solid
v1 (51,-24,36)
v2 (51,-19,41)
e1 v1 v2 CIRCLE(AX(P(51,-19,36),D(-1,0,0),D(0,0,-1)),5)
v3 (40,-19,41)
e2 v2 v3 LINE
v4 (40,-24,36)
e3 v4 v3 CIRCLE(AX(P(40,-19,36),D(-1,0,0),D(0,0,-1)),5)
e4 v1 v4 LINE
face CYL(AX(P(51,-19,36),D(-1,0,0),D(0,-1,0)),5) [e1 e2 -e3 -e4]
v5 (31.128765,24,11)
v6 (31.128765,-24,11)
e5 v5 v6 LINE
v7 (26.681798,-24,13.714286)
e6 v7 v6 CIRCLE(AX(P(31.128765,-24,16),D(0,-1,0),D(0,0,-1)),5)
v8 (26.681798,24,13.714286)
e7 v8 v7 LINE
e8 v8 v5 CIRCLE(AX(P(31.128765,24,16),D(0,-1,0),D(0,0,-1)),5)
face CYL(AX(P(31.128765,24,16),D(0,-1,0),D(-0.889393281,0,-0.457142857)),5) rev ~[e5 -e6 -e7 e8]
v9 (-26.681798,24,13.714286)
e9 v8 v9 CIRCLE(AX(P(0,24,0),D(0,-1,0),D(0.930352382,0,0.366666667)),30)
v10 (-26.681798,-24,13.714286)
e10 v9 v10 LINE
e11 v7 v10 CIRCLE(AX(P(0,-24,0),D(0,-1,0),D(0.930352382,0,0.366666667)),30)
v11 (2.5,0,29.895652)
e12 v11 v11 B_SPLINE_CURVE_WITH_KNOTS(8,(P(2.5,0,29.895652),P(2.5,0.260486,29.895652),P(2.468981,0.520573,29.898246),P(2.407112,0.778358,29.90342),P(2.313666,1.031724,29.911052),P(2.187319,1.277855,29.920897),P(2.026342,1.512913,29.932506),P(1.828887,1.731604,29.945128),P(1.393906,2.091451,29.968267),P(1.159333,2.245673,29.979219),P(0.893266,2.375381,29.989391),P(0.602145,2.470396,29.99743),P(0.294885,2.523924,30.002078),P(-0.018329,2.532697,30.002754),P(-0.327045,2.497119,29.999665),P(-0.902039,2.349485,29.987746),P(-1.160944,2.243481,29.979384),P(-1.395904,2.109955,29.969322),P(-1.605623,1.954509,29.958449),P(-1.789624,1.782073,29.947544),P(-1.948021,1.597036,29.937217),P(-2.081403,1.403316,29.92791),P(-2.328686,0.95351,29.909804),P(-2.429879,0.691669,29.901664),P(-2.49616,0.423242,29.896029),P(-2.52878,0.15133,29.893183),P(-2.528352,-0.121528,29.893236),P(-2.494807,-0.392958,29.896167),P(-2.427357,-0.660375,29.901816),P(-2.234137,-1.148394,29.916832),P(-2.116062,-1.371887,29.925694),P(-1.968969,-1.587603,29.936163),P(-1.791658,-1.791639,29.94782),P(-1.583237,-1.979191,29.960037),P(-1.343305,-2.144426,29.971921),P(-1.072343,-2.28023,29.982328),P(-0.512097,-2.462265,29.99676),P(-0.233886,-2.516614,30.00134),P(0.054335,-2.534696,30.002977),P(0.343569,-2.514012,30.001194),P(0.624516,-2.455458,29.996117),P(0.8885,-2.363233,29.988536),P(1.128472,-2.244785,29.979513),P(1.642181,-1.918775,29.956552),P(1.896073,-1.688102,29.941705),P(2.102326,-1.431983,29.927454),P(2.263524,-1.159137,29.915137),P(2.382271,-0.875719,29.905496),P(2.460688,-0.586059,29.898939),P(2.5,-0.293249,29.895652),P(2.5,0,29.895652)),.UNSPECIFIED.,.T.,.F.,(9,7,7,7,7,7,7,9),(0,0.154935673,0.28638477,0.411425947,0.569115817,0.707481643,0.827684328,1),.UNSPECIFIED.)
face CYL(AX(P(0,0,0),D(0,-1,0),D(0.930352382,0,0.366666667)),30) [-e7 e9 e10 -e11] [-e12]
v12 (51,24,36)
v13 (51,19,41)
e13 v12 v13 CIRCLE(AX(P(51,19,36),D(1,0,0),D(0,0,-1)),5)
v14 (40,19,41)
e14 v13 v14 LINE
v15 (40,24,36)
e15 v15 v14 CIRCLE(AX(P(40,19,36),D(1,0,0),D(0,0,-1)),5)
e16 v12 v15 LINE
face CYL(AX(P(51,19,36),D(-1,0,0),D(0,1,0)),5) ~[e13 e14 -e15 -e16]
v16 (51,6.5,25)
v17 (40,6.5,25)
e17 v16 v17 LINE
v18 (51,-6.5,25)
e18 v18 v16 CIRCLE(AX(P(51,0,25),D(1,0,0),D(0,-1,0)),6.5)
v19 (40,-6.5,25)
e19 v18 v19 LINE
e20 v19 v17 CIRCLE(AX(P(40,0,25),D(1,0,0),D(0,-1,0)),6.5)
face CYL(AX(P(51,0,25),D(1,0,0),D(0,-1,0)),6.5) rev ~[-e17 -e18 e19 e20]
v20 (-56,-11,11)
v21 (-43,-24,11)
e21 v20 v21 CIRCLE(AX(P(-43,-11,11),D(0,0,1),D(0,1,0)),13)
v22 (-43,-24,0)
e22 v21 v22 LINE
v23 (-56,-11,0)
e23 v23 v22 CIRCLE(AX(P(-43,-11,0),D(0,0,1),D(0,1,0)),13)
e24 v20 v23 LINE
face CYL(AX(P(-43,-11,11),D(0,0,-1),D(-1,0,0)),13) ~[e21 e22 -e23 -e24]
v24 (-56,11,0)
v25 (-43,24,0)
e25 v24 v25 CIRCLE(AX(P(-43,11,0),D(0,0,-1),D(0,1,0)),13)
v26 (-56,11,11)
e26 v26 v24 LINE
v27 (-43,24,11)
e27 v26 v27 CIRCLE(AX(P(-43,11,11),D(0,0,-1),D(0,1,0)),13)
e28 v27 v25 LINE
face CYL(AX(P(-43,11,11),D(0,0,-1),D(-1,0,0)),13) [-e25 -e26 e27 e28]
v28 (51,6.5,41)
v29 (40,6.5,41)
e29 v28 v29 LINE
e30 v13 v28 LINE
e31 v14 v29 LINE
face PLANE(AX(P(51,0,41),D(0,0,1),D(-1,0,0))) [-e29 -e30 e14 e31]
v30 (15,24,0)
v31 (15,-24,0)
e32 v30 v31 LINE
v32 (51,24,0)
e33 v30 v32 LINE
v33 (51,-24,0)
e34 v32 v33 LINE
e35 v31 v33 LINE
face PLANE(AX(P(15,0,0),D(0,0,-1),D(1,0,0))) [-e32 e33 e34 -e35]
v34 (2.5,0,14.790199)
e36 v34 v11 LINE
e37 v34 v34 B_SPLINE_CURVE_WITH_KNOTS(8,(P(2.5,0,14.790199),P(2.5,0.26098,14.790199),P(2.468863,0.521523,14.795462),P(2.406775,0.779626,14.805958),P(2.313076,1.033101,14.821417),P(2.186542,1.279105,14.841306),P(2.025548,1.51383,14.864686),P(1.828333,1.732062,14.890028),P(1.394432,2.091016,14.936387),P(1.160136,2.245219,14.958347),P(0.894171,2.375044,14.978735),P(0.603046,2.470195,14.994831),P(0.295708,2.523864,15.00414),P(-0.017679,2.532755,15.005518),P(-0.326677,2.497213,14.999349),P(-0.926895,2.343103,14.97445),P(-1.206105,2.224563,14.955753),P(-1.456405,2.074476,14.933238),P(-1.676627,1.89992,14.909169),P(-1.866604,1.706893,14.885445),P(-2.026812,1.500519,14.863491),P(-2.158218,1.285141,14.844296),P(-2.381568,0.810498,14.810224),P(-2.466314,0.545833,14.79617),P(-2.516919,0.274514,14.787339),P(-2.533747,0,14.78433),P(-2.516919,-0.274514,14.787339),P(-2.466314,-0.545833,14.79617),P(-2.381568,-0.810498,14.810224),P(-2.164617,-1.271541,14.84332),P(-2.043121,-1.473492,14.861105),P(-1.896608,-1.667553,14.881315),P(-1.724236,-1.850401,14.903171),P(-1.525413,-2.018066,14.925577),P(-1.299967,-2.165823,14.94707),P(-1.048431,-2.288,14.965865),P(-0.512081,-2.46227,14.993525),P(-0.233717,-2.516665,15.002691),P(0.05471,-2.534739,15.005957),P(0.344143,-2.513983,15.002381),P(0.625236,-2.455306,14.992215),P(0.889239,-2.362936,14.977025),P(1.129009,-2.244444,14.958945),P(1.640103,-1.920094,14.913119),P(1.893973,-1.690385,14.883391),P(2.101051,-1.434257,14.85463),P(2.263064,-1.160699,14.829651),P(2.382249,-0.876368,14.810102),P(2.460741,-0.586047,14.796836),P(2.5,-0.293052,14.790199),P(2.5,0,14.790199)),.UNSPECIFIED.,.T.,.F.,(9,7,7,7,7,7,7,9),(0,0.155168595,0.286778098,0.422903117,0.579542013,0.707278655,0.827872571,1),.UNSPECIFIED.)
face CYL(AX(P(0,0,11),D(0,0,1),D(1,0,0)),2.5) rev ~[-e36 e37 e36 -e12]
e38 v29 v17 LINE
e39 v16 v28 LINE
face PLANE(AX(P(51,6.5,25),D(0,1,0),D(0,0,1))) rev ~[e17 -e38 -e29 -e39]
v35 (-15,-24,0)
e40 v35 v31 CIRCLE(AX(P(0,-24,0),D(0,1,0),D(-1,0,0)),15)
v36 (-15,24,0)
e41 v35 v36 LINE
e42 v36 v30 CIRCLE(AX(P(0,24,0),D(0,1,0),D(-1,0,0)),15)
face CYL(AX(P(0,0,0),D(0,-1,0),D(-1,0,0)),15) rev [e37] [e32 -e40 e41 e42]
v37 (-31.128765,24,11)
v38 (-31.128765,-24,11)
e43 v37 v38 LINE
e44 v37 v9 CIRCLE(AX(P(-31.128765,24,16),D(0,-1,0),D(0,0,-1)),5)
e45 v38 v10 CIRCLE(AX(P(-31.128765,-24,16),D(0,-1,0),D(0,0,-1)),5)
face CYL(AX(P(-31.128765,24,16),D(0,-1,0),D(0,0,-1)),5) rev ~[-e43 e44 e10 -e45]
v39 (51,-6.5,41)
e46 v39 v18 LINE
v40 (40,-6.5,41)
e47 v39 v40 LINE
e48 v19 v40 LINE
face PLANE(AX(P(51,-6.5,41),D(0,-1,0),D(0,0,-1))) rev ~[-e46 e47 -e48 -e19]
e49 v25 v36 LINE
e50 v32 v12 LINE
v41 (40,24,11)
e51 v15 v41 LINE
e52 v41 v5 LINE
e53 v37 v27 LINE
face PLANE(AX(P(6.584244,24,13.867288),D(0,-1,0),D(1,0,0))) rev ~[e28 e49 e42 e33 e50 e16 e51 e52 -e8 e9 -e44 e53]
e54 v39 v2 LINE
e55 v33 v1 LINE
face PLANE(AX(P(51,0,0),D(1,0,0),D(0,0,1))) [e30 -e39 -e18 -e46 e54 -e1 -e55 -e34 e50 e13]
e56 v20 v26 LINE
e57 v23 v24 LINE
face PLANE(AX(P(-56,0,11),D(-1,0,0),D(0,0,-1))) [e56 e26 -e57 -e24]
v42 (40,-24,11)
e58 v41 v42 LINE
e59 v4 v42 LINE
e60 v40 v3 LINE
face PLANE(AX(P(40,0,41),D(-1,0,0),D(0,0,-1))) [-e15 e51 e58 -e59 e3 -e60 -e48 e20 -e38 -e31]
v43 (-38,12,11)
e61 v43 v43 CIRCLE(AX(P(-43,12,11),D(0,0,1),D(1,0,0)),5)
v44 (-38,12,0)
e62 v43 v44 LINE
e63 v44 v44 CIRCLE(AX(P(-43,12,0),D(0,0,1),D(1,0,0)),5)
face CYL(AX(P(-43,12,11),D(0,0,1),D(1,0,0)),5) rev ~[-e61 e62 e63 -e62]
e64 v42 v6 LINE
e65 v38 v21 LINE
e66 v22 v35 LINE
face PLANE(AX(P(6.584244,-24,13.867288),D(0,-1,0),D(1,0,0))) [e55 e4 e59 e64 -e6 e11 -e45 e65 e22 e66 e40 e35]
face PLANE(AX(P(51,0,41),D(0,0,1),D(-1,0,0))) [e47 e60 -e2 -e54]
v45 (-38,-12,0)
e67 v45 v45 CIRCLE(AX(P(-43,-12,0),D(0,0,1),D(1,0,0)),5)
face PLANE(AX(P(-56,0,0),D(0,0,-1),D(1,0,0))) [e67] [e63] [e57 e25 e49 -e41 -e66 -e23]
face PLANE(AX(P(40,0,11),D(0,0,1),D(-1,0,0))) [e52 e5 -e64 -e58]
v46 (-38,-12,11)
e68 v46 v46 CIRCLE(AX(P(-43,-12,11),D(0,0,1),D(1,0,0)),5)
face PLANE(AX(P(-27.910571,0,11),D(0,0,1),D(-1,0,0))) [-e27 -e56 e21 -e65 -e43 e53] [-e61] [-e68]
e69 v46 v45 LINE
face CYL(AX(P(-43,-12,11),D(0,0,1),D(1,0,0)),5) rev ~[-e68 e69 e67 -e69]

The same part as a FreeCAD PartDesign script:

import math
import FreeCAD as App
import Part
import Sketcher


def edges_at(feature, points):
    """Names of the edges that pass closest to the given points."""
    edges = feature.Shape.Edges
    near = lambda p: min(range(len(edges)), key=lambda i: edges[i].distToShape(Part.Vertex(*p))[0])
    return sorted({f"Edge{near(p) + 1}" for p in points})

doc = App.newDocument("Part")
body = doc.addObject("PartDesign::Body", "Body")

# Sketch on XZ plane
sketch1 = doc.addObject("Sketcher::SketchObject", "Sketch")
body.addObject(sketch1)
sketch1.AttachmentSupport = (doc.XZ_Plane, [""])
sketch1.MapMode = "FlatFace"
sketch1.addGeometry(Part.ArcOfCircle(Part.Circle(App.Vector(0, 0, 0), App.Vector(0, 0, 1), 15), math.radians(0), math.radians(180)), False)
sketch1.addGeometry(Part.LineSegment(App.Vector(15, 0, 0), App.Vector(51, 0, 0)), False)
sketch1.addGeometry(Part.LineSegment(App.Vector(51, 0, 0), App.Vector(51, 41, 0)), False)
sketch1.addGeometry(Part.LineSegment(App.Vector(51, 41, 0), App.Vector(40, 41, 0)), False)
sketch1.addGeometry(Part.LineSegment(App.Vector(40, 41, 0), App.Vector(40, 11, 0)), False)
sketch1.addGeometry(Part.LineSegment(App.Vector(40, 11, 0), App.Vector(28, 11, 0)), False)
sketch1.addGeometry(Part.ArcOfCircle(Part.Circle(App.Vector(0, 0, 0), App.Vector(0, 0, 1), 30), math.radians(22), math.radians(158)), False)
sketch1.addGeometry(Part.LineSegment(App.Vector(-28, 11, 0), App.Vector(-56, 11, 0)), False)
sketch1.addGeometry(Part.LineSegment(App.Vector(-56, 11, 0), App.Vector(-56, 0, 0)), False)
sketch1.addGeometry(Part.LineSegment(App.Vector(-56, 0, 0), App.Vector(-15, 0, 0)), False)
sketch1.addConstraint(Sketcher.Constraint("Coincident", 0, 1, 1, 1))
sketch1.addConstraint(Sketcher.Constraint("Coincident", 1, 2, 2, 1))
sketch1.addConstraint(Sketcher.Constraint("Coincident", 2, 2, 3, 1))
sketch1.addConstraint(Sketcher.Constraint("Coincident", 3, 2, 4, 1))
sketch1.addConstraint(Sketcher.Constraint("Coincident", 4, 2, 5, 1))
sketch1.addConstraint(Sketcher.Constraint("Coincident", 5, 2, 6, 1))
sketch1.addConstraint(Sketcher.Constraint("Coincident", 6, 2, 7, 1))
sketch1.addConstraint(Sketcher.Constraint("Coincident", 7, 2, 8, 1))
sketch1.addConstraint(Sketcher.Constraint("Coincident", 8, 2, 9, 1))
sketch1.addConstraint(Sketcher.Constraint("Coincident", 9, 2, 0, 2))
sketch1.addConstraint(Sketcher.Constraint("Horizontal", 1))
sketch1.addConstraint(Sketcher.Constraint("Vertical", 2))
sketch1.addConstraint(Sketcher.Constraint("Horizontal", 3))
sketch1.addConstraint(Sketcher.Constraint("Vertical", 4))
sketch1.addConstraint(Sketcher.Constraint("Horizontal", 5))
sketch1.addConstraint(Sketcher.Constraint("Horizontal", 7))
sketch1.addConstraint(Sketcher.Constraint("Vertical", 8))
sketch1.addConstraint(Sketcher.Constraint("Horizontal", 9))
sketch1.addConstraint(Sketcher.Constraint("Coincident", 0, 3, -1, 1))
sketch1.addConstraint(Sketcher.Constraint("Coincident", 6, 3, -1, 1))
sketch1.addConstraint(Sketcher.Constraint("PointOnObject", 0, 1, -1))
sketch1.addConstraint(Sketcher.Constraint("PointOnObject", 8, 2, -1))
sketch1.addConstraint(Sketcher.Constraint("Horizontal", 5, 2, 6, 2))
sketch1.addConstraint(Sketcher.Constraint("Equal", 9, 2))
sketch1.addConstraint(Sketcher.Constraint("Equal", 3, 8))
sketch1.addConstraint(Sketcher.Constraint("Radius", 0, 15.0))
sketch1.addConstraint(Sketcher.Constraint("Radius", 6, 30.0))
sketch1.addConstraint(Sketcher.Constraint("DistanceX", 1, 1, 1, 2, 36.0))
sketch1.addConstraint(Sketcher.Constraint("DistanceX", 3, 2, 3, 1, 11.0))
sketch1.addConstraint(Sketcher.Constraint("DistanceX", 9, 1, 9, 2, 41.0))
pad1 = doc.addObject("PartDesign::Pad", "Pad")
body.addObject(pad1)
pad1.Profile = sketch1
pad1.Length = 48
pad1.Midplane = True
doc.recompute()

fillet = doc.addObject("PartDesign::Fillet", "Fillet")
body.addObject(fillet)
fillet.Base = (pad1, edges_at(pad1, [(-56, -24, 5.5), (-56, 24, 5.5)]))
fillet.Radius = 13
doc.recompute()

fillet2 = doc.addObject("PartDesign::Fillet", "Fillet001")
body.addObject(fillet2)
fillet2.Base = (fillet, edges_at(fillet, [
    (45.5, -24, 41),
    (45.5, 24, 41),
    (-27.911, 0, 11),
    (27.911, 0, 11),
]))
fillet2.Radius = 5

# Sketch on XY plane
sketch2 = doc.addObject("Sketcher::SketchObject", "Sketch001")
body.addObject(sketch2)
sketch2.AttachmentSupport = (doc.XY_Plane, [""])
sketch2.MapMode = "FlatFace"
sketch2.AttachmentOffset = App.Placement(App.Vector(0, 0, 11), App.Rotation())
sketch2.addGeometry(Part.Circle(App.Vector(-43, 12, 0), App.Vector(0, 0, 1), 5), False)
sketch2.addGeometry(Part.Circle(App.Vector(-43, -12, 0), App.Vector(0, 0, 1), 5), False)
sketch2.addGeometry(Part.Circle(App.Vector(0, 0, 0), App.Vector(0, 0, 1), 2.5), False)
sketch2.addConstraint(Sketcher.Constraint("Coincident", 2, 3, -1, 1))
sketch2.addConstraint(Sketcher.Constraint("Equal", 0, 1))
sketch2.addConstraint(Sketcher.Constraint("Symmetric", 0, 3, 1, 3, -1))
sketch2.addConstraint(Sketcher.Constraint("Diameter", 0, 10.0))
sketch2.addConstraint(Sketcher.Constraint("Diameter", 2, 5.0))
sketch2.addConstraint(Sketcher.Constraint("DistanceX", 0, 3, -1, 1, 43.0))
sketch2.addConstraint(Sketcher.Constraint("DistanceY", -1, 1, 0, 3, 12.0))
pocket1 = doc.addObject("PartDesign::Pocket", "Pocket")
body.addObject(pocket1)
pocket1.Profile = sketch2
pocket1.Length = 88.8
pocket1.Midplane = True

# Sketch on YZ plane
sketch3 = doc.addObject("Sketcher::SketchObject", "Sketch002")
body.addObject(sketch3)
sketch3.AttachmentSupport = (doc.YZ_Plane, [""])
sketch3.MapMode = "FlatFace"
sketch3.AttachmentOffset = App.Placement(App.Vector(0, 0, 51), App.Rotation())
sketch3.addGeometry(Part.LineSegment(App.Vector(6, 41, 0), App.Vector(-6, 41, 0)), False)
sketch3.addGeometry(Part.LineSegment(App.Vector(-6, 41, 0), App.Vector(-6, 25, 0)), False)
sketch3.addGeometry(Part.ArcOfCircle(Part.Circle(App.Vector(0, 25, 0), App.Vector(0, 0, 1), 6), math.radians(180), math.radians(360)), False)
sketch3.addGeometry(Part.LineSegment(App.Vector(6, 25, 0), App.Vector(6, 41, 0)), False)
sketch3.addConstraint(Sketcher.Constraint("Coincident", 0, 2, 1, 1))
sketch3.addConstraint(Sketcher.Constraint("Tangent", 1, 2, 2, 1))
sketch3.addConstraint(Sketcher.Constraint("Tangent", 2, 2, 3, 1))
sketch3.addConstraint(Sketcher.Constraint("Coincident", 3, 2, 0, 1))
sketch3.addConstraint(Sketcher.Constraint("Horizontal", 0))
sketch3.addConstraint(Sketcher.Constraint("Vertical", 1))
sketch3.addConstraint(Sketcher.Constraint("Vertical", 3))
sketch3.addConstraint(Sketcher.Constraint("PointOnObject", 2, 3, -2))
sketch3.addConstraint(Sketcher.Constraint("Radius", 2, 6.5))
sketch3.addConstraint(Sketcher.Constraint("DistanceY", 1, 2, 1, 1, 16.0))
sketch3.addConstraint(Sketcher.Constraint("DistanceY", -1, 1, 2, 3, 25.0))
pocket2 = doc.addObject("PartDesign::Pocket", "Pocket001")
body.addObject(pocket2)
pocket2.Profile = sketch3
pocket2.Type = "TwoLengths"
pocket2.Length = 15.7
pocket2.Length2 = 25

doc.recompute()
